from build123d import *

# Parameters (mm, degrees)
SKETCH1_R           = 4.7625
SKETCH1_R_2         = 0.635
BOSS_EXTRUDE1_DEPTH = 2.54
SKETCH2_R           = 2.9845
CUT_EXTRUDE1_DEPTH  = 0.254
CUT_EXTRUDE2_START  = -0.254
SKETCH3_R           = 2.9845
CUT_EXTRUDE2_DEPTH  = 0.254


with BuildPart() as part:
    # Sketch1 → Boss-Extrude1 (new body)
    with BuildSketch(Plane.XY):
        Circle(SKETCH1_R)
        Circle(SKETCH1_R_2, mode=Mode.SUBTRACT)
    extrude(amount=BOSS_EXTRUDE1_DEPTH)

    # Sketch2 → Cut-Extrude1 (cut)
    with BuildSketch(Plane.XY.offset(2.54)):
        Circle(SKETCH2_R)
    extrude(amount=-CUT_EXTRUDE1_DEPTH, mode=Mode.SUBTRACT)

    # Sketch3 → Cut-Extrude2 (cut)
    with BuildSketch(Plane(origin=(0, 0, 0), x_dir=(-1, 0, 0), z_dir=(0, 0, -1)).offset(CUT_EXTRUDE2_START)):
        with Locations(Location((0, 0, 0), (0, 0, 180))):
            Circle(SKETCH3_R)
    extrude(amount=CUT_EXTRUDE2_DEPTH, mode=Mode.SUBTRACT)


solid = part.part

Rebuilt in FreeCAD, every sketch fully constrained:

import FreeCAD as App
import Part
import Sketcher
Q = App.Units.Quantity

doc = App.newDocument("Part")
body = doc.addObject("PartDesign::Body", "Body")

# Sketch on XY plane
sketch1 = doc.addObject("Sketcher::SketchObject", "Sketch")
body.addObject(sketch1)
sketch1.AttachmentSupport = (doc.XY_Plane, [""])
sketch1.MapMode = "FlatFace"
sketch1.addGeometry([
    Part.Circle(App.Vector(0, 0, 0), App.Vector(0, 0, 1), 4.8),
    Part.Circle(App.Vector(0, 0, 0), App.Vector(0, 0, 1), 0.6),
], False)
sketch1.addConstraint([
    Sketcher.Constraint("Coincident", 0, 3, -1, 1),
    Sketcher.Constraint("Coincident", 1, 3, -1, 1),
    Sketcher.Constraint("Diameter", 1, Q("0.05 in")),
    Sketcher.Constraint("Diameter", 0, Q("0.375 in")),
])
pad1 = doc.addObject("PartDesign::Pad", "Pad")
body.addObject(pad1)
pad1.Profile = sketch1
pad1.Length = Q("0.1 in")

# Sketch on XY plane
sketch2 = doc.addObject("Sketcher::SketchObject", "Sketch001")
body.addObject(sketch2)
sketch2.AttachmentSupport = (doc.XY_Plane, [""])
sketch2.MapMode = "FlatFace"
sketch2.AttachmentOffset = App.Placement(App.Vector(0, 0, 0.1 * 25.4), App.Rotation())
sketch2.addGeometry(Part.Circle(App.Vector(0, 0, 0), App.Vector(0, 0, 1), 3), False)
sketch2.addConstraint([
    Sketcher.Constraint("Coincident", 0, 3, -1, 1),
    Sketcher.Constraint("Diameter", 0, Q("0.235 in")),
])
pocket1 = doc.addObject("PartDesign::Pocket", "Pocket")
body.addObject(pocket1)
pocket1.Profile = sketch2
pocket1.Length = Q("0.01 in")

# Sketch on XY plane
sketch3 = doc.addObject("Sketcher::SketchObject", "Sketch002")
body.addObject(sketch3)
sketch3.AttachmentSupport = (doc.XY_Plane, [""])
sketch3.MapMode = "FlatFace"
sketch3.AttachmentOffset = App.Placement(App.Vector(0, 0, 0.01 * 25.4), App.Rotation())
sketch3.addGeometry(Part.Circle(App.Vector(0, 0, 0), App.Vector(0, 0, 1), 3), False)
sketch3.addConstraint([
    Sketcher.Constraint("Coincident", 0, 3, -1, 1),
    Sketcher.Constraint("Diameter", 0, Q("0.235 in")),
])
pocket2 = doc.addObject("PartDesign::Pocket", "Pocket001")
body.addObject(pocket2)
pocket2.Profile = sketch3
pocket2.Length = Q("0.01 in")

doc.recompute()
